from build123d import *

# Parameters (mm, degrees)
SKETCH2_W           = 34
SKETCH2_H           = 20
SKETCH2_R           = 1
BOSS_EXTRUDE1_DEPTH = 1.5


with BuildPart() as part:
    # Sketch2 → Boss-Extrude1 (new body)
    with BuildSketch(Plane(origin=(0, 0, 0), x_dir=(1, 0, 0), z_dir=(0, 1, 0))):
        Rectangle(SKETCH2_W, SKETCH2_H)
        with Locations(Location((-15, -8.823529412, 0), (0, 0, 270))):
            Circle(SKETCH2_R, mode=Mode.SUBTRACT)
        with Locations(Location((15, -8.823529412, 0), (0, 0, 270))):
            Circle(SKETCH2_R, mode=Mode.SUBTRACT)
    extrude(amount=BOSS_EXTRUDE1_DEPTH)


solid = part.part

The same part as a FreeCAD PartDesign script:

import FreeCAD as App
import Part
import Sketcher
from FreeCAD import Vector
Q = App.Units.Quantity

doc = App.newDocument("Part")
body = doc.addObject("PartDesign::Body", "Body")

sketch1 = doc.addObject("Sketcher::SketchObject", "Sketch")
body.addObject(sketch1)
sketch1.AttachmentSupport = (doc.XZ_Plane, [""])
sketch1.MapMode = "FlatFace"
sketch1.addGeometry([
    Part.LineSegment(Vector(-17, -10, 0), Vector(-17, 10, 0)),
    Part.LineSegment(Vector(-17, 10, 0), Vector(17, 10, 0)),
    Part.LineSegment(Vector(17, 10, 0), Vector(17, -10, 0)),
    Part.LineSegment(Vector(17, -10, 0), Vector(-17, -10, 0)),
    Part.Circle(Vector(-15, 8.8, 0), Vector(0, 0, 1), 1),
    Part.Circle(Vector(15, 8.8, 0), Vector(0, 0, 1), 1),
], False)
sketch1.addConstraint([
    Sketcher.Constraint("Coincident", 0, 2, 1, 1),
    Sketcher.Constraint("Coincident", 1, 2, 2, 1),
    Sketcher.Constraint("Coincident", 2, 2, 3, 1),
    Sketcher.Constraint("Coincident", 3, 2, 0, 1),
    Sketcher.Constraint("Vertical", 0),
    Sketcher.Constraint("Horizontal", 1),
    Sketcher.Constraint("Vertical", 2),
    Sketcher.Constraint("Horizontal", 3),
    Sketcher.Constraint("Equal", 4, 5),
    Sketcher.Constraint("Symmetric", 0, 2, 2, 2, -1, 1),
    Sketcher.Constraint("Symmetric", 4, 3, 5, 3, -2),
    Sketcher.Constraint("Diameter", 4, Q("2 mm")),
    Sketcher.Constraint("DistanceX", 1, 1, 1, 2, Q("34 mm")),
    Sketcher.Constraint("DistanceY", 0, 1, 0, 2, Q("20 mm")),
    Sketcher.Constraint("DistanceX", 4, 3, -1, 1, Q("15 mm")),
    Sketcher.Constraint("DistanceY", -1, 1, 4, 3, Q("8.823529 mm")),
])
pad1 = doc.addObject("PartDesign::Pad", "Pad")
body.addObject(pad1)
pad1.Profile = sketch1
pad1.Length = 1.5
pad1.Reversed = True

doc.recompute()
